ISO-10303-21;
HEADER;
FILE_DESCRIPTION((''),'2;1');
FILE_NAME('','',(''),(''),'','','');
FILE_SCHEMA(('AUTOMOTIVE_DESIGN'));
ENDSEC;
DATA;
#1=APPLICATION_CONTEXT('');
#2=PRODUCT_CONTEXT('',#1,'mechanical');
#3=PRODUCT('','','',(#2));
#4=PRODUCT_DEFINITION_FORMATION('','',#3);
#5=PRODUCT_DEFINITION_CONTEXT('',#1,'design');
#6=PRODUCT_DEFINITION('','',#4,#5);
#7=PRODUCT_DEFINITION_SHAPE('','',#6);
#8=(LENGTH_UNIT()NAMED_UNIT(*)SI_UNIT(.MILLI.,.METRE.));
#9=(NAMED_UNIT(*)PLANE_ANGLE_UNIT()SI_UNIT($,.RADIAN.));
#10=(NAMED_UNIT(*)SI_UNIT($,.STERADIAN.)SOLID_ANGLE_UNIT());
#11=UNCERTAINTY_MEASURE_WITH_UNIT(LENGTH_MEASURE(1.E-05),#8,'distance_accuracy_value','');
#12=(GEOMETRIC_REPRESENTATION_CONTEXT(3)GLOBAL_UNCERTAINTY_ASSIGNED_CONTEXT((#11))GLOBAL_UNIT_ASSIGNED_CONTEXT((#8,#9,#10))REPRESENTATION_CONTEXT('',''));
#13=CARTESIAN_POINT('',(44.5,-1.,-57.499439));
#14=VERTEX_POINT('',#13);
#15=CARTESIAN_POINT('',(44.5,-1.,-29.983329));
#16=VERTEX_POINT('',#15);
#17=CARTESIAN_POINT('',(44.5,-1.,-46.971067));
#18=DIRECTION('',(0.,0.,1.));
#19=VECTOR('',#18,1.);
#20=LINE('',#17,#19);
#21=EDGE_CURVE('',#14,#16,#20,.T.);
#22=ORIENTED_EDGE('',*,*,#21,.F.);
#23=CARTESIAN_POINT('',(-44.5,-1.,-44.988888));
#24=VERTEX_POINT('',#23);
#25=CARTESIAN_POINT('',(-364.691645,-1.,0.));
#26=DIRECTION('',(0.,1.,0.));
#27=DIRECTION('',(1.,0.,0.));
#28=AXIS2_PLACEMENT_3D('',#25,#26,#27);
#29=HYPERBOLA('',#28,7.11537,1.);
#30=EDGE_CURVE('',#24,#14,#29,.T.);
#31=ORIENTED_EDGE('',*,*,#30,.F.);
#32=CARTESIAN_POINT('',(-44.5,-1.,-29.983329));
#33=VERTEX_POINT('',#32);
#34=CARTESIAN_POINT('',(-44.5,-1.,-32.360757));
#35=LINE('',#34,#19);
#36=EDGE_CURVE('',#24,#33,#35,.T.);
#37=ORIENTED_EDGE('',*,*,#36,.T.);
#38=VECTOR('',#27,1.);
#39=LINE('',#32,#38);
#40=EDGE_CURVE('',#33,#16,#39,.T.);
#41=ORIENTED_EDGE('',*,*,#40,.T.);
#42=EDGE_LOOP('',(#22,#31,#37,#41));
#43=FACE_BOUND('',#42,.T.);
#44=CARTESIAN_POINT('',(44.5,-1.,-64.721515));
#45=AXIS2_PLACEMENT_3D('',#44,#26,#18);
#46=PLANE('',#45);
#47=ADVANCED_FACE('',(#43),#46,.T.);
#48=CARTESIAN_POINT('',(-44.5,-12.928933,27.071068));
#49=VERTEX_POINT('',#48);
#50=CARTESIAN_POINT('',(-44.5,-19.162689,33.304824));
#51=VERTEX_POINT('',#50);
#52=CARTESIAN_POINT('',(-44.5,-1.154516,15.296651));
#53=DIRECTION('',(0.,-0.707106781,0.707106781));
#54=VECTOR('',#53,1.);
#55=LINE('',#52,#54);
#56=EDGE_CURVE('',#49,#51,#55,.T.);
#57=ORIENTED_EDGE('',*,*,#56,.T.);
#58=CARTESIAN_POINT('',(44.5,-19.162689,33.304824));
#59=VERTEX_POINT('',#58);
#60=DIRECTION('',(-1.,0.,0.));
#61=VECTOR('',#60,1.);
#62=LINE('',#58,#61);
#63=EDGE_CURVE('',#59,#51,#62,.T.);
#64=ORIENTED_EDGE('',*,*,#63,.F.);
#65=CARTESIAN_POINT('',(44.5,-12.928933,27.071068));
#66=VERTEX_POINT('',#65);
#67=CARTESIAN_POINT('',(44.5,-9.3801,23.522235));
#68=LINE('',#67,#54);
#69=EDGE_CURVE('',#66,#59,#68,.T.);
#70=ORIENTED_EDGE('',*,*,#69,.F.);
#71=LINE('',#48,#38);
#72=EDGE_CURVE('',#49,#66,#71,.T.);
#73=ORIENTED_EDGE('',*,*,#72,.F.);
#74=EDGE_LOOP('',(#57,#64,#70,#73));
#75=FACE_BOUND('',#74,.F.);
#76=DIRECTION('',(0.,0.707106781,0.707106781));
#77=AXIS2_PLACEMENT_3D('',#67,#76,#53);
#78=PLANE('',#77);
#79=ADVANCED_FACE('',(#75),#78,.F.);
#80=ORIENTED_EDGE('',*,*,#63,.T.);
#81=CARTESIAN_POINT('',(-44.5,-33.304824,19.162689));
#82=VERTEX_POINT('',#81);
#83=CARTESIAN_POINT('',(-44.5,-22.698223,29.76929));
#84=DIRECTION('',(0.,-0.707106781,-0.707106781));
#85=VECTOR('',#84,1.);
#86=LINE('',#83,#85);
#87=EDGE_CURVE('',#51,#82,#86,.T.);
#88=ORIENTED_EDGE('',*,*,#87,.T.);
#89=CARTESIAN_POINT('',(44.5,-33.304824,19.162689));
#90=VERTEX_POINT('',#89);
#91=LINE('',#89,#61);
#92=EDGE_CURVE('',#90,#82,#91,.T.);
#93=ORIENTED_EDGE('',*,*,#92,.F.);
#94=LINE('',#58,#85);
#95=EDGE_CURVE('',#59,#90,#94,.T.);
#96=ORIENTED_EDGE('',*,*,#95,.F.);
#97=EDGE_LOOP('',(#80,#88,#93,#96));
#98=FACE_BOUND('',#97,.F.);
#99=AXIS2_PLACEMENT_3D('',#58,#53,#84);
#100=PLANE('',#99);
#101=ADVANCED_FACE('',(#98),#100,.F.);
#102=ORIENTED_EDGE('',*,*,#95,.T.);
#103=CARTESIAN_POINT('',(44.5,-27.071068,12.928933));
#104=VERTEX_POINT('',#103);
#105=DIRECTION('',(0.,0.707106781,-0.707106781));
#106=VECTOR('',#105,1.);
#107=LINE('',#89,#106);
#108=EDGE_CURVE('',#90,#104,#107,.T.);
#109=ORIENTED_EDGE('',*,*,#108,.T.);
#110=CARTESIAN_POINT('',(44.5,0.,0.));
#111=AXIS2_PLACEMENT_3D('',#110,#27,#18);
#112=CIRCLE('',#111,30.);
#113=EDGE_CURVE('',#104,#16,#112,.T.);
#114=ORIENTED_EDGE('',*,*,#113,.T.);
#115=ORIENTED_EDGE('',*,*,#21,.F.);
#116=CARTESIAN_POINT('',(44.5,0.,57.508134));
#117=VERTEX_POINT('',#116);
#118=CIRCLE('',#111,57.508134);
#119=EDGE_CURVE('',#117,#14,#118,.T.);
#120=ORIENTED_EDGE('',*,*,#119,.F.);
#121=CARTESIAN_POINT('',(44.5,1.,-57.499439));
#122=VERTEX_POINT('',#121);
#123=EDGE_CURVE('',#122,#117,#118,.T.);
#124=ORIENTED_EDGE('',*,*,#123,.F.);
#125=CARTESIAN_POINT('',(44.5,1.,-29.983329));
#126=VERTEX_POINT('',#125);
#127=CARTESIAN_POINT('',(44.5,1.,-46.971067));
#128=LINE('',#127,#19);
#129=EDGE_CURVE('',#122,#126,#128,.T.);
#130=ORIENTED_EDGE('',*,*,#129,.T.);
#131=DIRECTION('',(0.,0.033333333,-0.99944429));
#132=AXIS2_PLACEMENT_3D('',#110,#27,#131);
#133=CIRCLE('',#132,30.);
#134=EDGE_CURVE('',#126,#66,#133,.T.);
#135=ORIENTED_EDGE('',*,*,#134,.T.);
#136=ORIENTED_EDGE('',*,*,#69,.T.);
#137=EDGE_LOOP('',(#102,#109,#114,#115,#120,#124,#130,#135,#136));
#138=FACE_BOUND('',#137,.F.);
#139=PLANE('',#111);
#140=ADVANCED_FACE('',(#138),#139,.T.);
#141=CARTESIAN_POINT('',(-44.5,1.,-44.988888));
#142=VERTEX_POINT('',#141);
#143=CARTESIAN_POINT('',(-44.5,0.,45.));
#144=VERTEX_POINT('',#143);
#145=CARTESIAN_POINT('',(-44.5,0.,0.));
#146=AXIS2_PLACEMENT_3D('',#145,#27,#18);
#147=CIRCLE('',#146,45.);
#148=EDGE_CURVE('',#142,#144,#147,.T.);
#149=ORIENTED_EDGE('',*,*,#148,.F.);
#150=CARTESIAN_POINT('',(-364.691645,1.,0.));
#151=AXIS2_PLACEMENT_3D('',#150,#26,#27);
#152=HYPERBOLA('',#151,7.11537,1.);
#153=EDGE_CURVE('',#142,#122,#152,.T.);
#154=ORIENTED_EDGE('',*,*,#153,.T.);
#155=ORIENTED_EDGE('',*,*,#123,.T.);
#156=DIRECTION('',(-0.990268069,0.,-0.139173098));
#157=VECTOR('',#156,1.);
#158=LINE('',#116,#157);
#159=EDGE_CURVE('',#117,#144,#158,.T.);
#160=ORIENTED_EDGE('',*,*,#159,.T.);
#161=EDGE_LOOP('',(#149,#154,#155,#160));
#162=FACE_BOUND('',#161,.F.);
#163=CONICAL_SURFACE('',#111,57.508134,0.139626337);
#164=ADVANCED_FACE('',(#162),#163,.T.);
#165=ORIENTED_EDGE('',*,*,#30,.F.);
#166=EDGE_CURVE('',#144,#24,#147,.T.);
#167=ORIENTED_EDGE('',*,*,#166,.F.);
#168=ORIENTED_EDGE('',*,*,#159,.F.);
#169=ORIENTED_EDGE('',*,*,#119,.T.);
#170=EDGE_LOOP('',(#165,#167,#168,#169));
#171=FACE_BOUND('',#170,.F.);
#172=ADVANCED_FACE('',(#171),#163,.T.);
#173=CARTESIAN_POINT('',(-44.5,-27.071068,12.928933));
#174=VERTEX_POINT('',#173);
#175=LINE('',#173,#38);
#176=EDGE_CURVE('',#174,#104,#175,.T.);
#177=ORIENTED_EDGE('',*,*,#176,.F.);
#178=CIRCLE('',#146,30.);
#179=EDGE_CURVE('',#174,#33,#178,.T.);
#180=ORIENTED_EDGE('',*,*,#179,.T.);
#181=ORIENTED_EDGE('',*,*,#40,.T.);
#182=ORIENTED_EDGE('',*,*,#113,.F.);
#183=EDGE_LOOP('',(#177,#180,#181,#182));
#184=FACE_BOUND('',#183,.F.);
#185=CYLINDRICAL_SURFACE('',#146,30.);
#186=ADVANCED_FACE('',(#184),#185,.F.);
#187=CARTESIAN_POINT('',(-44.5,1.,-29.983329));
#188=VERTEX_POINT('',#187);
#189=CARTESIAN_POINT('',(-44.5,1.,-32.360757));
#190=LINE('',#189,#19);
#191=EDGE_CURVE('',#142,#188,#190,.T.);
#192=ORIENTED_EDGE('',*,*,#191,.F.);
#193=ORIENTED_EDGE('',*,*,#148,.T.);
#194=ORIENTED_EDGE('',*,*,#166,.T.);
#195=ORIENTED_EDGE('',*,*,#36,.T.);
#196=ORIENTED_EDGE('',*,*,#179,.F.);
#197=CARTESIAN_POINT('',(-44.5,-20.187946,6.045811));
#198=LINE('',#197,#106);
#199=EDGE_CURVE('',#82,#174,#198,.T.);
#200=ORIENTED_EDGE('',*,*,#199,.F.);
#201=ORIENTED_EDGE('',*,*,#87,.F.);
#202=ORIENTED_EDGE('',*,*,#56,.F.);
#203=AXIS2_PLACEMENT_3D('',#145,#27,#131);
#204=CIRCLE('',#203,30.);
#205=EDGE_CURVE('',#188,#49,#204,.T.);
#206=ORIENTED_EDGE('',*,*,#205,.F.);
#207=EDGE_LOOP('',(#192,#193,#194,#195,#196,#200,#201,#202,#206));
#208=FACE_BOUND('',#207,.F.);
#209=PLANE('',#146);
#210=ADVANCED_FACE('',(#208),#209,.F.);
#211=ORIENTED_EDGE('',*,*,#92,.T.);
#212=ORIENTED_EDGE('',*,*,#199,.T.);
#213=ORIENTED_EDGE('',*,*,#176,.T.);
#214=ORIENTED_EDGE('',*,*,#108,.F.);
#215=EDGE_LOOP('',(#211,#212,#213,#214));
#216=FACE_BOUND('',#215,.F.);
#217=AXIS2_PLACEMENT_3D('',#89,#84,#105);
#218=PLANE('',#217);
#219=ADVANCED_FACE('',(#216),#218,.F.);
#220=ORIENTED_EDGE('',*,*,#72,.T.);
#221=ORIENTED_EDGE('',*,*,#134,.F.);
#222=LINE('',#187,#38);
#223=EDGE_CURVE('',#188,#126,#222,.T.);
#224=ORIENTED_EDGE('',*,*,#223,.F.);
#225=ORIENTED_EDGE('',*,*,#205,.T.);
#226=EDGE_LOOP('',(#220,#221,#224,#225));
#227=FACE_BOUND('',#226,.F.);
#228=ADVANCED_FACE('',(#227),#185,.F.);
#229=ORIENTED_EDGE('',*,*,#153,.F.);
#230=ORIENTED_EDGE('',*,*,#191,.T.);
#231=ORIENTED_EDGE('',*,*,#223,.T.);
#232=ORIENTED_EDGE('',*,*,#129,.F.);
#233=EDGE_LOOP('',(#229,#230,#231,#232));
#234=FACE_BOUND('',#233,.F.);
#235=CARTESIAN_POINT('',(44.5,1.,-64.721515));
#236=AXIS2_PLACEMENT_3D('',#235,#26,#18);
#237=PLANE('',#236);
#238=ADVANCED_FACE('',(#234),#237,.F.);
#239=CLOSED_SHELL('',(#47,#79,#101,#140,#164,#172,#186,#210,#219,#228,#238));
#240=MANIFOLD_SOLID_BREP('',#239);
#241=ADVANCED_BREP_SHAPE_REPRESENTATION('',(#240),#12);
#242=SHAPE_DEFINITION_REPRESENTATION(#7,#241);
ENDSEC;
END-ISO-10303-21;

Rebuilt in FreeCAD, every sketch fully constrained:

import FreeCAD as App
import Part
import Sketcher

V = App.Vector
Q = App.Units.Quantity


def add_polygon(sketch, points):
    """Adds a closed chain of lines whose ends are joined by coincident constraints."""
    first, n = sketch.GeometryCount, len(points)
    for a, b in zip(points, points[1:] + points[:1]):
        sketch.addGeometry(Part.LineSegment(App.Vector(*a, 0), App.Vector(*b, 0)), False)
    for i in range(n):
        sketch.addConstraint(Sketcher.Constraint("Coincident", first + i, 2, first + (i + 1) % n, 1))

doc = App.newDocument("Part")
body = doc.addObject("PartDesign::Body", "Body")

sketch1 = body.newObject("Sketcher::SketchObject", "Sketch")
sketch1.AttachmentSupport = (doc.getObject("XZ_Plane"), [""])
sketch1.MapMode = "FlatFace"
add_polygon(sketch1, [(-44.5, 45), (-44.5, 30), (44.5, 30), (44.5, 57.508134)])
sketch1.addConstraint(Sketcher.Constraint("Vertical", 0))
sketch1.addConstraint(Sketcher.Constraint("Horizontal", 1))
sketch1.addConstraint(Sketcher.Constraint("Vertical", 2))
sketch1.addConstraint(Sketcher.Constraint("DistanceX", 1, 1, 1, 2, 89.0))
sketch1.addConstraint(Sketcher.Constraint("DistanceY", 0, 2, 0, 1, 15.0))
sketch1.addConstraint(Sketcher.Constraint("Angle", 3, Q("-172 deg")))
sketch1.addConstraint(Sketcher.Constraint("DistanceY", -1, 1, 0, 2, 30.0))
sketch1.addConstraint(Sketcher.Constraint("DistanceX", 0, 2, -1, 1, 44.5))
revolution = body.newObject("PartDesign::Revolution", "Revolution")
revolution.Profile = sketch1
revolution.ReferenceAxis = (sketch1, ["H_Axis"])
revolution.Angle = 360

sketch2 = body.newObject("Sketcher::SketchObject", "Sketch001")
sketch2.AttachmentSupport = (doc.getObject("YZ_Plane"), [""])
sketch2.MapMode = "FlatFace"
sketch2.AttachmentOffset = App.Placement(V(0, 0, 44.5), App.Rotation())
add_polygon(sketch2, [(-1, -29.220619), (-1, -64.721515), (1, -64.721515), (1, -29.220619)])
sketch2.addConstraint(Sketcher.Constraint("Vertical", 0))
sketch2.addConstraint(Sketcher.Constraint("Horizontal", 1))
sketch2.addConstraint(Sketcher.Constraint("Vertical", 2))
sketch2.addConstraint(Sketcher.Constraint("Horizontal", 3))
sketch2.addConstraint(Sketcher.Constraint("DistanceX", 1, 1, 1, 2, 2.0))
sketch2.addConstraint(Sketcher.Constraint("DistanceX", 0, 2, -1, 1, 1.0))
sketch2.addConstraint(Sketcher.Constraint("DistanceY", 0, 2, 0, 1, 35.500896))
sketch2.addConstraint(Sketcher.Constraint("DistanceY", 2, 2, -1, 1, 29.220619))
pocket1 = body.newObject("PartDesign::Pocket", "Pocket")
pocket1.Profile = sketch2
pocket1.Type = "ThroughAll"

sketch3 = body.newObject("Sketcher::SketchObject", "Sketch002")
sketch3.AttachmentSupport = (doc.getObject("YZ_Plane"), [""])
sketch3.MapMode = "FlatFace"
sketch3.AttachmentOffset = App.Placement(V(0, 0, 44.5), App.Rotation())
add_polygon(sketch3, [(-9.3801, 23.522235), (-19.162689, 33.304824), (-33.304824, 19.162689), (-23.522235, 9.3801)])
sketch3.addConstraint(Sketcher.Constraint("Perpendicular", 0, 1))
sketch3.addConstraint(Sketcher.Constraint("Perpendicular", 1, 2))
sketch3.addConstraint(Sketcher.Constraint("Perpendicular", 2, 3))
sketch3.addConstraint(Sketcher.Constraint("Angle", 0, Q("135 deg")))
sketch3.addConstraint(Sketcher.Constraint("Distance", 1, 19.999999))
sketch3.addConstraint(Sketcher.Constraint("DistanceY", -1, 1, 2, 2, 9.3801))
sketch3.addConstraint(Sketcher.Constraint("DistanceX", 3, 2, -1, 1, 9.3801))
sketch3.addConstraint(Sketcher.Constraint("Distance", 0, 13.83467))
pocket2 = body.newObject("PartDesign::Pocket", "Pocket001")
pocket2.Profile = sketch3
pocket2.Type = "ThroughAll"

doc.recompute()
